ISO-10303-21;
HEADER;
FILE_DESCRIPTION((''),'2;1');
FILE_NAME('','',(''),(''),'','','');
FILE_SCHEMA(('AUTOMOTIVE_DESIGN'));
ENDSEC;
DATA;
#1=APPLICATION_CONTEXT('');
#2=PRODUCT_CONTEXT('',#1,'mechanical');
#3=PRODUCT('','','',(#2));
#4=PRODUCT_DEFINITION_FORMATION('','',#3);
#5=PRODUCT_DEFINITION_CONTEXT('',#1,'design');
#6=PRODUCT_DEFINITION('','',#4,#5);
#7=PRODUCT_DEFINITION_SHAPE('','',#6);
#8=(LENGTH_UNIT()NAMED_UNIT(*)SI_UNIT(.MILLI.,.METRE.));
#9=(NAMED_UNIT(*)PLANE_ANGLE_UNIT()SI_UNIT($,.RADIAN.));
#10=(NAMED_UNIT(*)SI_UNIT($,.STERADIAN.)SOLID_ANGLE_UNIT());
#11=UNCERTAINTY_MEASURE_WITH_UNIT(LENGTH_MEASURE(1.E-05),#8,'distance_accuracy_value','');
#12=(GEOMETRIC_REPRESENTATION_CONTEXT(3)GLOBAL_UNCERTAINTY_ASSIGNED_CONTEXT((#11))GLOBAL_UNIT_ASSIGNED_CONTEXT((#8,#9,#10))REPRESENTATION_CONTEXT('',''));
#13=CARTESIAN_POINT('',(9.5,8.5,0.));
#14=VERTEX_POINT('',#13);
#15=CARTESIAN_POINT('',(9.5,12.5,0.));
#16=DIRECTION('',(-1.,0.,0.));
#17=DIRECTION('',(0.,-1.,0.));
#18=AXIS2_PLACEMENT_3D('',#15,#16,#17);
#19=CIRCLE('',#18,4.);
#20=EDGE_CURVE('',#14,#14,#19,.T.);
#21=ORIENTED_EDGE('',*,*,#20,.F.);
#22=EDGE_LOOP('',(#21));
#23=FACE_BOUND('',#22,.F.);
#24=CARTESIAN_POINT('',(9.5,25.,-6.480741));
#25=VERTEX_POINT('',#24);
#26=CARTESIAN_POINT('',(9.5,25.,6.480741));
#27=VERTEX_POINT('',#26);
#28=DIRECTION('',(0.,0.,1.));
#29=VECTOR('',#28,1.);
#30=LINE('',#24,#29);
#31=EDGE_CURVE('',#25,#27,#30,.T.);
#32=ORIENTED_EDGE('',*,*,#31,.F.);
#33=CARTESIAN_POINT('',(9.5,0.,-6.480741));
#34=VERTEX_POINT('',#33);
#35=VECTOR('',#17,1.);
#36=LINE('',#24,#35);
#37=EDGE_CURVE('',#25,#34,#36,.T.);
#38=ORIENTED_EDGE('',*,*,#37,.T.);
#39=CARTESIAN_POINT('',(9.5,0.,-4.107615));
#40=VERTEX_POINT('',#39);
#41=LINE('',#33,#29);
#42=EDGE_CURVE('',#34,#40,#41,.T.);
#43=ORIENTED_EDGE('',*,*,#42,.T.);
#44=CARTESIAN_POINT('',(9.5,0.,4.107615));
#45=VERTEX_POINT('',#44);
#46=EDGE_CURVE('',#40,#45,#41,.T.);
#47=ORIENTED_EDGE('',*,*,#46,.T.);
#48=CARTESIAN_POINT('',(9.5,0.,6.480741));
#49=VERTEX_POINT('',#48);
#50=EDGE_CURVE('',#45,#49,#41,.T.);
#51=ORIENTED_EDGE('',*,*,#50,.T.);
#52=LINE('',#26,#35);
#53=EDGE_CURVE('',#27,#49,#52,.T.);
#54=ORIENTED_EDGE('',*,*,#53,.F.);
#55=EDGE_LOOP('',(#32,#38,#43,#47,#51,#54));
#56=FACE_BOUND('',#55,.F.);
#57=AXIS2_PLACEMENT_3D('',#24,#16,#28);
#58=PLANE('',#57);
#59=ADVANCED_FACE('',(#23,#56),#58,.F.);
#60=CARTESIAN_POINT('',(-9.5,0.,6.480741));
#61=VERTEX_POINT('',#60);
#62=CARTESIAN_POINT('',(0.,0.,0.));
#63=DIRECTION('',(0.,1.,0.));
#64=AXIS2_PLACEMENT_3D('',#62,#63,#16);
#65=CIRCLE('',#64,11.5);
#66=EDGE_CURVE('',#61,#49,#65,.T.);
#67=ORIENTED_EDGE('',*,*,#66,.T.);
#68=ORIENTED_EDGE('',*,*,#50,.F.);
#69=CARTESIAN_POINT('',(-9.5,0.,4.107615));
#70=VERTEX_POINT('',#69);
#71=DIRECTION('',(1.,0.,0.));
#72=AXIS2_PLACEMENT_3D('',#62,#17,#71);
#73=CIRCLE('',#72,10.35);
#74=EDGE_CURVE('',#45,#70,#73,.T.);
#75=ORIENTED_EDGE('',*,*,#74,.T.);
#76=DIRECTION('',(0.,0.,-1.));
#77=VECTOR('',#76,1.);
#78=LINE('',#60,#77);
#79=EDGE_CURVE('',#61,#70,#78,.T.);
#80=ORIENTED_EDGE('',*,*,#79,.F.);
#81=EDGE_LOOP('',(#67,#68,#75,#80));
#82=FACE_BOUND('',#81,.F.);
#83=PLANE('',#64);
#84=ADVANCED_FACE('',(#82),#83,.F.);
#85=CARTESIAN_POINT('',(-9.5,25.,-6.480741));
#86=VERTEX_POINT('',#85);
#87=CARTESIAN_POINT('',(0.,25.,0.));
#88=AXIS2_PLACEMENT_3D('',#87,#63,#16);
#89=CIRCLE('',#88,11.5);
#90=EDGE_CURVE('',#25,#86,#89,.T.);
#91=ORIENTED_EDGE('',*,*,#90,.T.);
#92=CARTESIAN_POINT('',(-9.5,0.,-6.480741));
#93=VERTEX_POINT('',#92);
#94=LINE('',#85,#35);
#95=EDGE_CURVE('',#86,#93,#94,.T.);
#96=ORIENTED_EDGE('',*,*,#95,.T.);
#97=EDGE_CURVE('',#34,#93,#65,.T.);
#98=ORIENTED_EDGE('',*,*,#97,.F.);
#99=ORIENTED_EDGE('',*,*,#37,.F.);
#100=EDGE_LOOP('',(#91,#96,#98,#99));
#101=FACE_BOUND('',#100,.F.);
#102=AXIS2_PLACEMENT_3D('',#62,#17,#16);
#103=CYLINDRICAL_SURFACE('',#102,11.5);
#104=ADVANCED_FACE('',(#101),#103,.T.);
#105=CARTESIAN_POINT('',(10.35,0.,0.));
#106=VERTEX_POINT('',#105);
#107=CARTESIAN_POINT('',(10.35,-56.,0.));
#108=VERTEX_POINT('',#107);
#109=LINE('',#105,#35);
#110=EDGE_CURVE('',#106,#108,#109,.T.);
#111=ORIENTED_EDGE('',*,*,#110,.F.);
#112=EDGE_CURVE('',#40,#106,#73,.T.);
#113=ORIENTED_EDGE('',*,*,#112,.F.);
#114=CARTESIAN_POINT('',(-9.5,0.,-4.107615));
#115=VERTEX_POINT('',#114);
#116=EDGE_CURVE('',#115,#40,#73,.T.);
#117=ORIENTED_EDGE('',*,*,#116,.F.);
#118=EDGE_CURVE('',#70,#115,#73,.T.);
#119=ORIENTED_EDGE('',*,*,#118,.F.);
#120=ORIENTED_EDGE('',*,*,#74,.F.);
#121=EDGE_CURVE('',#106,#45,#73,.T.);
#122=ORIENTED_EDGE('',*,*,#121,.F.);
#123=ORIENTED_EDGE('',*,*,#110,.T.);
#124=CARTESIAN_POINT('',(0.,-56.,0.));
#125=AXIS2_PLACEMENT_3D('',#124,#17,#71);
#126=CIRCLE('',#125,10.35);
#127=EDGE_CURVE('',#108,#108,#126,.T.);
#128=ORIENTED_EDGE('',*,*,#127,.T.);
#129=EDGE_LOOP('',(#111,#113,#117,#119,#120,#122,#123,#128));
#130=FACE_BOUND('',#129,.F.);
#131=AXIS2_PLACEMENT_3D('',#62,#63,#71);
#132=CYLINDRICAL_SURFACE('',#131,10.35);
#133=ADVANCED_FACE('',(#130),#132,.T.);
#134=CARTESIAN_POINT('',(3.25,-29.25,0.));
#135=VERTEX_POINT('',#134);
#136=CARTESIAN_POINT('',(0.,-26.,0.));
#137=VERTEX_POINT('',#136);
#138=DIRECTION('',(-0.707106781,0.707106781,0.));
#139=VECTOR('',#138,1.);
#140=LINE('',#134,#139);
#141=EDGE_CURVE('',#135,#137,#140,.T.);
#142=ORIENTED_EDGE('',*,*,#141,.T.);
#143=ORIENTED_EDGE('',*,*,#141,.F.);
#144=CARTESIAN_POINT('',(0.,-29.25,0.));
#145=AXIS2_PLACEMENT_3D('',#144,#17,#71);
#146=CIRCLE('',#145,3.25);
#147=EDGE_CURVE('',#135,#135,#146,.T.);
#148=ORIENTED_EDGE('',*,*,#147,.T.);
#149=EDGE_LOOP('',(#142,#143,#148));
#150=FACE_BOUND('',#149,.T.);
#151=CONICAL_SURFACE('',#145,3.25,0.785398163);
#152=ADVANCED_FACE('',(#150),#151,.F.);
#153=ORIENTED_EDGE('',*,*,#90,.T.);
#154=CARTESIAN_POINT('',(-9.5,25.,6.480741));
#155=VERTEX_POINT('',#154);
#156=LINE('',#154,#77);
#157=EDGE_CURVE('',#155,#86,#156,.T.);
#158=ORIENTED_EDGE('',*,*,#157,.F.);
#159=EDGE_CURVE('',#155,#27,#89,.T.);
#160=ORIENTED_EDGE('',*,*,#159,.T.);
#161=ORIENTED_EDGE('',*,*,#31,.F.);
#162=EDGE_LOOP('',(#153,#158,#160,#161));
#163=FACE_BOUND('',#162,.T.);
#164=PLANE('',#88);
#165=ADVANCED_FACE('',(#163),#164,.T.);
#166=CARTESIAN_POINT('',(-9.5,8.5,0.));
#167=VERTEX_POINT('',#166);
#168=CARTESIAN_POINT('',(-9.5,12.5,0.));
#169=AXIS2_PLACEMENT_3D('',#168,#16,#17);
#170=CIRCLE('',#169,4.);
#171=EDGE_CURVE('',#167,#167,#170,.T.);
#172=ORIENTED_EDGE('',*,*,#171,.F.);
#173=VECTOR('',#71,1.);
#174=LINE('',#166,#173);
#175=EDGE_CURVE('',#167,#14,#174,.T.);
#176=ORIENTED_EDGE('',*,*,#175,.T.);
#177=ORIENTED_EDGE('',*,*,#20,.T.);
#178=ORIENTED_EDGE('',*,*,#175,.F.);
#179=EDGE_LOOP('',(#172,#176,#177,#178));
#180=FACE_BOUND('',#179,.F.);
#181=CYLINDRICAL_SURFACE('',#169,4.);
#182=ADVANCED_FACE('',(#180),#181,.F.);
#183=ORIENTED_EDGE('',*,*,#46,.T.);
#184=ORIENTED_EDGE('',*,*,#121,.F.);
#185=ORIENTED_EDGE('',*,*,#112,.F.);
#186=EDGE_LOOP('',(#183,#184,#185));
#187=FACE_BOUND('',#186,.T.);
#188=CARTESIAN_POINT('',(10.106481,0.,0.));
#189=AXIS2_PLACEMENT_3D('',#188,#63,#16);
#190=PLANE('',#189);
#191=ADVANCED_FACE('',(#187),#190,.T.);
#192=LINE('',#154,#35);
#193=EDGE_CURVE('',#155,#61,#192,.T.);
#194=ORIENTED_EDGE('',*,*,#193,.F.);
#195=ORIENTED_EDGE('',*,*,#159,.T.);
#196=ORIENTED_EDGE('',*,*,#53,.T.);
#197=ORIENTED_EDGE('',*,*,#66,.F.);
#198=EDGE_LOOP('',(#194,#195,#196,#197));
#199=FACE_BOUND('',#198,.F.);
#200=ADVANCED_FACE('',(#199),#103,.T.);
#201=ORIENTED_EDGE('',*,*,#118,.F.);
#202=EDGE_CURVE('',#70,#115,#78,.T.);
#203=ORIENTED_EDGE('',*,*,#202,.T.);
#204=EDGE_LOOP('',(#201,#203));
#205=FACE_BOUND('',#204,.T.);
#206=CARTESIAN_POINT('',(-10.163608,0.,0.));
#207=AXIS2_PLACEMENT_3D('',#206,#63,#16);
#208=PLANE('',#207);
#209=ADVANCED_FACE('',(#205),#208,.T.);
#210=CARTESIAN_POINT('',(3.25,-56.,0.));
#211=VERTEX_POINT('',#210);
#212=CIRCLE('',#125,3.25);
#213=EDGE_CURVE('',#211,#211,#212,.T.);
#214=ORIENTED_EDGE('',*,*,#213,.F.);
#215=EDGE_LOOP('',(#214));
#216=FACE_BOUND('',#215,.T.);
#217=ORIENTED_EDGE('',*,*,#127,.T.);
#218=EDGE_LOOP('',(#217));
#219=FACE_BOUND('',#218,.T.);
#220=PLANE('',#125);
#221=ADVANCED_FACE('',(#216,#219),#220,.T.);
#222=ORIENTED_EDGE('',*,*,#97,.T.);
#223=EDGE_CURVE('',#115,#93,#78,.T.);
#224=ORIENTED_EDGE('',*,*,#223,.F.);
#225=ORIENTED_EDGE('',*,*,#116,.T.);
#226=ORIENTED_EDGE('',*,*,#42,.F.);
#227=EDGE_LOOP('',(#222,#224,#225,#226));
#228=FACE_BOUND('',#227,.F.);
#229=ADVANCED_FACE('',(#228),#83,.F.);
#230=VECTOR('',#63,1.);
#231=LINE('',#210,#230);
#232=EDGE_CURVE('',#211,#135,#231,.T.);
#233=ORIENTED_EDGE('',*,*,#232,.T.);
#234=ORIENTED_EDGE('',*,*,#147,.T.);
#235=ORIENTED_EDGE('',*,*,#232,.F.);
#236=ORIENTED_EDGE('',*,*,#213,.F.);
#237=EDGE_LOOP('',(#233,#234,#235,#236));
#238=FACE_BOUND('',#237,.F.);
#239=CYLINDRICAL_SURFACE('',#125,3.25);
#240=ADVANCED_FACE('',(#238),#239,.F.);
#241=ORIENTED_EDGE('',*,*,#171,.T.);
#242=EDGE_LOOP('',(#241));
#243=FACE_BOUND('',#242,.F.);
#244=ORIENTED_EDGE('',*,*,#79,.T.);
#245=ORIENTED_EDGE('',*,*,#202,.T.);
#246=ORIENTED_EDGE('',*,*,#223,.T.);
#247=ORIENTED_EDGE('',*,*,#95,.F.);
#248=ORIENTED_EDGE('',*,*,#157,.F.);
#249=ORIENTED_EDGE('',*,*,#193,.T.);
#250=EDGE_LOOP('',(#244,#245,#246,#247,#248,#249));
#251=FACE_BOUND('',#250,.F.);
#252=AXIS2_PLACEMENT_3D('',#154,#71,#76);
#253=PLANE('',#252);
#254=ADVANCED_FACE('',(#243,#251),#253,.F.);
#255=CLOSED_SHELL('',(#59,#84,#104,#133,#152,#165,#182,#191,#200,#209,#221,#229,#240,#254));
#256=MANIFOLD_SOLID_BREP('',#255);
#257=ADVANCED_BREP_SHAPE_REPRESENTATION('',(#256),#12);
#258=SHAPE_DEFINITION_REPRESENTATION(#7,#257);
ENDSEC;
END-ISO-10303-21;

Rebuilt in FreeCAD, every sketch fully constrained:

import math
import FreeCAD as App
import Part
import Sketcher


def edges_at(feature, points):
    """Names of the edges that pass closest to the given points."""
    edges = feature.Shape.Edges
    near = lambda p: min(range(len(edges)), key=lambda i: edges[i].distToShape(Part.Vertex(*p))[0])
    return sorted({f"Edge{near(p) + 1}" for p in points})

doc = App.newDocument("Part")
body = doc.addObject("PartDesign::Body", "Body")

# Sketch on XZ plane
sketch1 = body.newObject("Sketcher::SketchObject", "Sketch")
sketch1.AttachmentSupport = (doc.getObject("XZ_Plane"), [""])
sketch1.MapMode = "FlatFace"
sketch1.addGeometry(Part.Circle(App.Vector(0, 0, 0), App.Vector(0, 0, 1), 10.35), False)
sketch1.addConstraint(Sketcher.Constraint("Coincident", 0, 3, -1, 1))
sketch1.addConstraint(Sketcher.Constraint("Diameter", 0, 20.7))
pad1 = body.newObject("PartDesign::Pad", "Pad")
pad1.Profile = sketch1
pad1.Length = 56

# Sketch on XZ plane
sketch2 = body.newObject("Sketcher::SketchObject", "Sketch001")
sketch2.AttachmentSupport = (doc.getObject("XZ_Plane"), [""])
sketch2.MapMode = "FlatFace"
sketch2.addGeometry(Part.Circle(App.Vector(0, 0, 0), App.Vector(0, 0, 1), 11.5), False)
sketch2.addConstraint(Sketcher.Constraint("Coincident", 0, 3, -1, 1))
sketch2.addConstraint(Sketcher.Constraint("Diameter", 0, 23.0))
pad2 = body.newObject("PartDesign::Pad", "Pad001")
pad2.Profile = sketch2
pad2.Length = 25
pad2.Reversed = True

# Sketch on XZ plane
sketch3 = body.newObject("Sketcher::SketchObject", "Sketch002")
sketch3.AttachmentSupport = (doc.getObject("XZ_Plane"), [""])
sketch3.MapMode = "FlatFace"
sketch3.AttachmentOffset = App.Placement(App.Vector(0, 0, -25), App.Rotation())
sketch3.addGeometry(Part.LineSegment(App.Vector(9.5, -6.480741, 0), App.Vector(9.5, 6.480741, 0)), False)
sketch3.addGeometry(Part.ArcOfCircle(Part.Circle(App.Vector(0, 0, 0), App.Vector(0, 0, 1), 11.5), math.radians(-34.301153), math.radians(34.301153)), False)
sketch3.addGeometry(Part.ArcOfCircle(Part.Circle(App.Vector(0, 0, 0), App.Vector(0, 0, 1), 11.5), math.radians(145.698847), math.radians(180)), False)
sketch3.addGeometry(Part.LineSegment(App.Vector(-9.5, 6.480741, 0), App.Vector(-9.5, -6.480741, 0)), False)
sketch3.addGeometry(Part.ArcOfCircle(Part.Circle(App.Vector(0, 0, 0), App.Vector(0, 0, 1), 11.5), math.radians(180), math.radians(214.301153)), False)
sketch3.addConstraint(Sketcher.Constraint("Coincident", 0, 1, 1, 1))
sketch3.addConstraint(Sketcher.Constraint("Coincident", 1, 2, 0, 2))
sketch3.addConstraint(Sketcher.Constraint("Coincident", 2, 1, 3, 1))
sketch3.addConstraint(Sketcher.Constraint("Coincident", 3, 2, 4, 2))
sketch3.addConstraint(Sketcher.Constraint("Tangent", 4, 1, 2, 2))
sketch3.addConstraint(Sketcher.Constraint("Vertical", 0))
sketch3.addConstraint(Sketcher.Constraint("Vertical", 3))
sketch3.addConstraint(Sketcher.Constraint("Coincident", 1, 3, -1, 1))
sketch3.addConstraint(Sketcher.Constraint("Coincident", 2, 3, -1, 1))
sketch3.addConstraint(Sketcher.Constraint("Equal", 1, 2))
sketch3.addConstraint(Sketcher.Constraint("Equal", 2, 4))
sketch3.addConstraint(Sketcher.Constraint("PointOnObject", 4, 1, -1))
sketch3.addConstraint(Sketcher.Constraint("Horizontal", 1, 2, 2, 1))
sketch3.addConstraint(Sketcher.Constraint("Radius", 1, 11.5))
sketch3.addConstraint(Sketcher.Constraint("DistanceX", 2, 1, 1, 2, 19.0))
pocket1 = body.newObject("PartDesign::Pocket", "Pocket")
pocket1.Profile = sketch3
pocket1.Length = 25
pocket1.Reversed = True

# Sketch on YZ plane
sketch4 = body.newObject("Sketcher::SketchObject", "Sketch003")
sketch4.AttachmentSupport = (doc.getObject("YZ_Plane"), [""])
sketch4.MapMode = "FlatFace"
sketch4.AttachmentOffset = App.Placement(App.Vector(0, 0, -9.5), App.Rotation())
sketch4.addGeometry(Part.Circle(App.Vector(12.5, 0, 0), App.Vector(0, 0, 1), 4), False)
sketch4.addConstraint(Sketcher.Constraint("PointOnObject", 0, 3, -1))
sketch4.addConstraint(Sketcher.Constraint("Diameter", 0, 8.0))
sketch4.addConstraint(Sketcher.Constraint("DistanceX", -1, 1, 0, 3, 12.5))
pocket2 = body.newObject("PartDesign::Pocket", "Pocket001")
pocket2.Profile = sketch4
pocket2.Length = 25
pocket2.Reversed = True

# Sketch on XZ plane
sketch5 = body.newObject("Sketcher::SketchObject", "Sketch004")
sketch5.AttachmentSupport = (doc.getObject("XZ_Plane"), [""])
sketch5.MapMode = "FlatFace"
sketch5.AttachmentOffset = App.Placement(App.Vector(0, 0, 56), App.Rotation())
sketch5.addGeometry(Part.Circle(App.Vector(0, 0, 0), App.Vector(0, 0, 1), 3.25), False)
sketch5.addConstraint(Sketcher.Constraint("Coincident", 0, 3, -1, 1))
sketch5.addConstraint(Sketcher.Constraint("Diameter", 0, 6.5))
pocket3 = body.newObject("PartDesign::Pocket", "Pocket002")
pocket3.Profile = sketch5
pocket3.Length = 30
doc.recompute()

chamfer = body.newObject("PartDesign::Chamfer", "Chamfer")
chamfer.Base = (pocket3, edges_at(pocket3, [(-3.25, -26, 0)]))
chamfer.Size = 3.25

doc.recompute()
